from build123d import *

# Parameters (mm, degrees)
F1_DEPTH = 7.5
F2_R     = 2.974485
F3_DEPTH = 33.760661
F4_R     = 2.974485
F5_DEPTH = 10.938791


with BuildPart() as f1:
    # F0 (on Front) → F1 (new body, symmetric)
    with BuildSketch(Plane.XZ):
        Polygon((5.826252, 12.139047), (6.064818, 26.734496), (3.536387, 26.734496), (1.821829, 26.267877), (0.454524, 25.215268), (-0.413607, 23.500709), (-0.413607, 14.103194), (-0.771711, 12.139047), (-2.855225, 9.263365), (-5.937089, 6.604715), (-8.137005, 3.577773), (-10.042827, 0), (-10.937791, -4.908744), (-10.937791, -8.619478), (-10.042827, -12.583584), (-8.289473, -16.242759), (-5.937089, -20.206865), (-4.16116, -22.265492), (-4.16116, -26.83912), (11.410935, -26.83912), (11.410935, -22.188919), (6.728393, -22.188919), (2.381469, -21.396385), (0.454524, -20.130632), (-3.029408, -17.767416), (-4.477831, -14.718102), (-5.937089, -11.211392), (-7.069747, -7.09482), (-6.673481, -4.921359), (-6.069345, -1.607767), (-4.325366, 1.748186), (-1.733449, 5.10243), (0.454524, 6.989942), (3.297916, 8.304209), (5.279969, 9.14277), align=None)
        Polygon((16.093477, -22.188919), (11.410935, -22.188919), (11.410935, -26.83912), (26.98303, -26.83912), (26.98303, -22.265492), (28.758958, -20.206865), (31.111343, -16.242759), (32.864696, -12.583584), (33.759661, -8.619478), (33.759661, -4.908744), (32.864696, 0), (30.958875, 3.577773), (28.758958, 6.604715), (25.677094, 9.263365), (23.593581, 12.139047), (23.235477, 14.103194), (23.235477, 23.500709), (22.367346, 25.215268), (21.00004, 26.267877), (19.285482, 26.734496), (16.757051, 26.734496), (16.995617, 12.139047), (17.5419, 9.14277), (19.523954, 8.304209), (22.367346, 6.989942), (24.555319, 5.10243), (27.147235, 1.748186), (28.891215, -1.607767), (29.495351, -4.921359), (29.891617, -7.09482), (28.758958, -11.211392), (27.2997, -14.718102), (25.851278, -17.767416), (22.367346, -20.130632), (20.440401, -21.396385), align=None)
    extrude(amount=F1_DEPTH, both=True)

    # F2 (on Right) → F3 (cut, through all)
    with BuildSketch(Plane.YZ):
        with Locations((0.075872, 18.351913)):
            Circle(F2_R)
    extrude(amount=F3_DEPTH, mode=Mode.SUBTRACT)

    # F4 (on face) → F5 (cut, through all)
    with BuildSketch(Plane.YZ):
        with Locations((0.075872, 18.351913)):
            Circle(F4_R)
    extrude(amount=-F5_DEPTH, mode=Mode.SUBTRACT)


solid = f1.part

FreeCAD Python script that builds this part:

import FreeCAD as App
import Part
import Sketcher

doc = App.newDocument("Part")
params = doc.addObject("Spreadsheet::Sheet", "Params")
for row, (alias, value) in enumerate([
    ("pad1_length", "15 mm"),
], start=1):
    params.set(f"A{row}", alias)
    params.set(f"B{row}", "=" + value)
    params.setAlias(f"B{row}", alias)

body = doc.addObject("PartDesign::Body", "Body")

sketch1 = doc.addObject("Sketcher::SketchObject", "Sketch")
body.addObject(sketch1)
sketch1.AttachmentSupport = (doc.XZ_Plane, [""])
sketch1.MapMode = "FlatFace"
sketch1.addGeometry(Part.LineSegment(App.Vector(5.8, 12.1, 0), App.Vector(6.1, 26.7, 0)), False)
sketch1.addGeometry(Part.LineSegment(App.Vector(6.1, 26.7, 0), App.Vector(3.5, 26.7, 0)), False)
sketch1.addGeometry(Part.LineSegment(App.Vector(3.5, 26.7, 0), App.Vector(1.8, 26.3, 0)), False)
sketch1.addGeometry(Part.LineSegment(App.Vector(1.8, 26.3, 0), App.Vector(0.5, 25.2, 0)), False)
sketch1.addGeometry(Part.LineSegment(App.Vector(0.5, 25.2, 0), App.Vector(-0.4, 23.5, 0)), False)
sketch1.addGeometry(Part.LineSegment(App.Vector(-0.4, 23.5, 0), App.Vector(-0.4, 14.1, 0)), False)
sketch1.addGeometry(Part.LineSegment(App.Vector(-0.4, 14.1, 0), App.Vector(-0.8, 12.1, 0)), False)
sketch1.addGeometry(Part.LineSegment(App.Vector(-0.8, 12.1, 0), App.Vector(-2.9, 9.3, 0)), False)
sketch1.addGeometry(Part.LineSegment(App.Vector(-2.9, 9.3, 0), App.Vector(-5.9, 6.6, 0)), False)
sketch1.addGeometry(Part.LineSegment(App.Vector(-5.9, 6.6, 0), App.Vector(-8.1, 3.6, 0)), False)
sketch1.addGeometry(Part.LineSegment(App.Vector(-8.1, 3.6, 0), App.Vector(-10, 0, 0)), False)
sketch1.addGeometry(Part.LineSegment(App.Vector(-10, 0, 0), App.Vector(-10.9, -4.9, 0)), False)
sketch1.addGeometry(Part.LineSegment(App.Vector(-10.9, -4.9, 0), App.Vector(-10.9, -8.6, 0)), False)
sketch1.addGeometry(Part.LineSegment(App.Vector(-10.9, -8.6, 0), App.Vector(-10, -12.6, 0)), False)
sketch1.addGeometry(Part.LineSegment(App.Vector(-10, -12.6, 0), App.Vector(-8.3, -16.2, 0)), False)
sketch1.addGeometry(Part.LineSegment(App.Vector(-8.3, -16.2, 0), App.Vector(-5.9, -20.2, 0)), False)
sketch1.addGeometry(Part.LineSegment(App.Vector(-5.9, -20.2, 0), App.Vector(-4.2, -22.3, 0)), False)
sketch1.addGeometry(Part.LineSegment(App.Vector(-4.2, -22.3, 0), App.Vector(-4.2, -26.8, 0)), False)
sketch1.addGeometry(Part.LineSegment(App.Vector(-4.2, -26.8, 0), App.Vector(27, -26.8, 0)), False)
sketch1.addGeometry(Part.LineSegment(App.Vector(27, -26.8, 0), App.Vector(27, -22.3, 0)), False)
sketch1.addGeometry(Part.LineSegment(App.Vector(27, -22.3, 0), App.Vector(28.8, -20.2, 0)), False)
sketch1.addGeometry(Part.LineSegment(App.Vector(28.8, -20.2, 0), App.Vector(31.1, -16.2, 0)), False)
sketch1.addGeometry(Part.LineSegment(App.Vector(31.1, -16.2, 0), App.Vector(32.9, -12.6, 0)), False)
sketch1.addGeometry(Part.LineSegment(App.Vector(32.9, -12.6, 0), App.Vector(33.8, -8.6, 0)), False)
sketch1.addGeometry(Part.LineSegment(App.Vector(33.8, -8.6, 0), App.Vector(33.8, -4.9, 0)), False)
sketch1.addGeometry(Part.LineSegment(App.Vector(33.8, -4.9, 0), App.Vector(32.9, 0, 0)), False)
sketch1.addGeometry(Part.LineSegment(App.Vector(32.9, 0, 0), App.Vector(31, 3.6, 0)), False)
sketch1.addGeometry(Part.LineSegment(App.Vector(31, 3.6, 0), App.Vector(28.8, 6.6, 0)), False)
sketch1.addGeometry(Part.LineSegment(App.Vector(28.8, 6.6, 0), App.Vector(25.7, 9.3, 0)), False)
sketch1.addGeometry(Part.LineSegment(App.Vector(25.7, 9.3, 0), App.Vector(23.6, 12.1, 0)), False)
sketch1.addGeometry(Part.LineSegment(App.Vector(23.6, 12.1, 0), App.Vector(23.2, 14.1, 0)), False)
sketch1.addGeometry(Part.LineSegment(App.Vector(23.2, 14.1, 0), App.Vector(23.2, 23.5, 0)), False)
sketch1.addGeometry(Part.LineSegment(App.Vector(23.2, 23.5, 0), App.Vector(22.4, 25.2, 0)), False)
sketch1.addGeometry(Part.LineSegment(App.Vector(22.4, 25.2, 0), App.Vector(21, 26.3, 0)), False)
sketch1.addGeometry(Part.LineSegment(App.Vector(21, 26.3, 0), App.Vector(19.3, 26.7, 0)), False)
sketch1.addGeometry(Part.LineSegment(App.Vector(19.3, 26.7, 0), App.Vector(16.8, 26.7, 0)), False)
sketch1.addGeometry(Part.LineSegment(App.Vector(16.8, 26.7, 0), App.Vector(17, 12.1, 0)), False)
sketch1.addGeometry(Part.LineSegment(App.Vector(17, 12.1, 0), App.Vector(17.5, 9.1, 0)), False)
sketch1.addGeometry(Part.LineSegment(App.Vector(17.5, 9.1, 0), App.Vector(19.5, 8.3, 0)), False)
sketch1.addGeometry(Part.LineSegment(App.Vector(19.5, 8.3, 0), App.Vector(22.4, 7, 0)), False)
sketch1.addGeometry(Part.LineSegment(App.Vector(22.4, 7, 0), App.Vector(24.6, 5.1, 0)), False)
sketch1.addGeometry(Part.LineSegment(App.Vector(24.6, 5.1, 0), App.Vector(27.1, 1.7, 0)), False)
sketch1.addGeometry(Part.LineSegment(App.Vector(27.1, 1.7, 0), App.Vector(28.9, -1.6, 0)), False)
sketch1.addGeometry(Part.LineSegment(App.Vector(28.9, -1.6, 0), App.Vector(29.5, -4.9, 0)), False)
sketch1.addGeometry(Part.LineSegment(App.Vector(29.5, -4.9, 0), App.Vector(29.9, -7.1, 0)), False)
sketch1.addGeometry(Part.LineSegment(App.Vector(29.9, -7.1, 0), App.Vector(28.8, -11.2, 0)), False)
sketch1.addGeometry(Part.LineSegment(App.Vector(28.8, -11.2, 0), App.Vector(27.3, -14.7, 0)), False)
sketch1.addGeometry(Part.LineSegment(App.Vector(27.3, -14.7, 0), App.Vector(25.9, -17.8, 0)), False)
sketch1.addGeometry(Part.LineSegment(App.Vector(25.9, -17.8, 0), App.Vector(22.4, -20.1, 0)), False)
sketch1.addGeometry(Part.LineSegment(App.Vector(22.4, -20.1, 0), App.Vector(20.4, -21.4, 0)), False)
sketch1.addGeometry(Part.LineSegment(App.Vector(20.4, -21.4, 0), App.Vector(16.1, -22.2, 0)), False)
sketch1.addGeometry(Part.LineSegment(App.Vector(16.1, -22.2, 0), App.Vector(6.7, -22.2, 0)), False)
sketch1.addGeometry(Part.LineSegment(App.Vector(6.7, -22.2, 0), App.Vector(2.4, -21.4, 0)), False)
sketch1.addGeometry(Part.LineSegment(App.Vector(2.4, -21.4, 0), App.Vector(0.5, -20.1, 0)), False)
sketch1.addGeometry(Part.LineSegment(App.Vector(0.5, -20.1, 0), App.Vector(-3, -17.8, 0)), False)
sketch1.addGeometry(Part.LineSegment(App.Vector(-3, -17.8, 0), App.Vector(-4.5, -14.7, 0)), False)
sketch1.addGeometry(Part.LineSegment(App.Vector(-4.5, -14.7, 0), App.Vector(-5.9, -11.2, 0)), False)
sketch1.addGeometry(Part.LineSegment(App.Vector(-5.9, -11.2, 0), App.Vector(-7.1, -7.1, 0)), False)
sketch1.addGeometry(Part.LineSegment(App.Vector(-7.1, -7.1, 0), App.Vector(-6.7, -4.9, 0)), False)
sketch1.addGeometry(Part.LineSegment(App.Vector(-6.7, -4.9, 0), App.Vector(-6.1, -1.6, 0)), False)
sketch1.addGeometry(Part.LineSegment(App.Vector(-6.1, -1.6, 0), App.Vector(-4.3, 1.7, 0)), False)
sketch1.addGeometry(Part.LineSegment(App.Vector(-4.3, 1.7, 0), App.Vector(-1.7, 5.1, 0)), False)
sketch1.addGeometry(Part.LineSegment(App.Vector(-1.7, 5.1, 0), App.Vector(0.5, 7, 0)), False)
sketch1.addGeometry(Part.LineSegment(App.Vector(0.5, 7, 0), App.Vector(3.3, 8.3, 0)), False)
sketch1.addGeometry(Part.LineSegment(App.Vector(3.3, 8.3, 0), App.Vector(5.3, 9.1, 0)), False)
sketch1.addGeometry(Part.LineSegment(App.Vector(5.3, 9.1, 0), App.Vector(5.8, 12.1, 0)), False)
sketch1.addConstraint(Sketcher.Constraint("Coincident", 0, 2, 1, 1))
sketch1.addConstraint(Sketcher.Constraint("Coincident", 1, 2, 2, 1))
sketch1.addConstraint(Sketcher.Constraint("Coincident", 2, 2, 3, 1))
sketch1.addConstraint(Sketcher.Constraint("Coincident", 3, 2, 4, 1))
sketch1.addConstraint(Sketcher.Constraint("Coincident", 4, 2, 5, 1))
sketch1.addConstraint(Sketcher.Constraint("Coincident", 5, 2, 6, 1))
sketch1.addConstraint(Sketcher.Constraint("Coincident", 6, 2, 7, 1))
sketch1.addConstraint(Sketcher.Constraint("Coincident", 7, 2, 8, 1))
sketch1.addConstraint(Sketcher.Constraint("Coincident", 8, 2, 9, 1))
sketch1.addConstraint(Sketcher.Constraint("Coincident", 9, 2, 10, 1))
sketch1.addConstraint(Sketcher.Constraint("Coincident", 10, 2, 11, 1))
sketch1.addConstraint(Sketcher.Constraint("Coincident", 11, 2, 12, 1))
sketch1.addConstraint(Sketcher.Constraint("Coincident", 12, 2, 13, 1))
sketch1.addConstraint(Sketcher.Constraint("Coincident", 13, 2, 14, 1))
sketch1.addConstraint(Sketcher.Constraint("Coincident", 14, 2, 15, 1))
sketch1.addConstraint(Sketcher.Constraint("Coincident", 15, 2, 16, 1))
sketch1.addConstraint(Sketcher.Constraint("Coincident", 16, 2, 17, 1))
sketch1.addConstraint(Sketcher.Constraint("Coincident", 17, 2, 18, 1))
sketch1.addConstraint(Sketcher.Constraint("Coincident", 18, 2, 19, 1))
sketch1.addConstraint(Sketcher.Constraint("Coincident", 19, 2, 20, 1))
sketch1.addConstraint(Sketcher.Constraint("Coincident", 20, 2, 21, 1))
sketch1.addConstraint(Sketcher.Constraint("Coincident", 21, 2, 22, 1))
sketch1.addConstraint(Sketcher.Constraint("Coincident", 22, 2, 23, 1))
sketch1.addConstraint(Sketcher.Constraint("Coincident", 23, 2, 24, 1))
sketch1.addConstraint(Sketcher.Constraint("Coincident", 24, 2, 25, 1))
sketch1.addConstraint(Sketcher.Constraint("Coincident", 25, 2, 26, 1))
sketch1.addConstraint(Sketcher.Constraint("Coincident", 26, 2, 27, 1))
sketch1.addConstraint(Sketcher.Constraint("Coincident", 27, 2, 28, 1))
sketch1.addConstraint(Sketcher.Constraint("Coincident", 28, 2, 29, 1))
sketch1.addConstraint(Sketcher.Constraint("Coincident", 29, 2, 30, 1))
sketch1.addConstraint(Sketcher.Constraint("Coincident", 30, 2, 31, 1))
sketch1.addConstraint(Sketcher.Constraint("Coincident", 31, 2, 32, 1))
sketch1.addConstraint(Sketcher.Constraint("Coincident", 32, 2, 33, 1))
sketch1.addConstraint(Sketcher.Constraint("Coincident", 33, 2, 34, 1))
sketch1.addConstraint(Sketcher.Constraint("Coincident", 34, 2, 35, 1))
sketch1.addConstraint(Sketcher.Constraint("Coincident", 35, 2, 36, 1))
sketch1.addConstraint(Sketcher.Constraint("Coincident", 36, 2, 37, 1))
sketch1.addConstraint(Sketcher.Constraint("Coincident", 37, 2, 38, 1))
sketch1.addConstraint(Sketcher.Constraint("Coincident", 38, 2, 39, 1))
sketch1.addConstraint(Sketcher.Constraint("Coincident", 39, 2, 40, 1))
sketch1.addConstraint(Sketcher.Constraint("Coincident", 40, 2, 41, 1))
sketch1.addConstraint(Sketcher.Constraint("Coincident", 41, 2, 42, 1))
sketch1.addConstraint(Sketcher.Constraint("Coincident", 42, 2, 43, 1))
sketch1.addConstraint(Sketcher.Constraint("Coincident", 43, 2, 44, 1))
sketch1.addConstraint(Sketcher.Constraint("Coincident", 44, 2, 45, 1))
sketch1.addConstraint(Sketcher.Constraint("Coincident", 45, 2, 46, 1))
sketch1.addConstraint(Sketcher.Constraint("Coincident", 46, 2, 47, 1))
sketch1.addConstraint(Sketcher.Constraint("Coincident", 47, 2, 48, 1))
sketch1.addConstraint(Sketcher.Constraint("Coincident", 48, 2, 49, 1))
sketch1.addConstraint(Sketcher.Constraint("Coincident", 49, 2, 50, 1))
sketch1.addConstraint(Sketcher.Constraint("Coincident", 50, 2, 51, 1))
sketch1.addConstraint(Sketcher.Constraint("Coincident", 51, 2, 52, 1))
sketch1.addConstraint(Sketcher.Constraint("Coincident", 52, 2, 53, 1))
sketch1.addConstraint(Sketcher.Constraint("Coincident", 53, 2, 54, 1))
sketch1.addConstraint(Sketcher.Constraint("Coincident", 54, 2, 55, 1))
sketch1.addConstraint(Sketcher.Constraint("Coincident", 55, 2, 56, 1))
sketch1.addConstraint(Sketcher.Constraint("Coincident", 56, 2, 57, 1))
sketch1.addConstraint(Sketcher.Constraint("Coincident", 57, 2, 58, 1))
sketch1.addConstraint(Sketcher.Constraint("Coincident", 58, 2, 59, 1))
sketch1.addConstraint(Sketcher.Constraint("Coincident", 59, 2, 60, 1))
sketch1.addConstraint(Sketcher.Constraint("Coincident", 60, 2, 61, 1))
sketch1.addConstraint(Sketcher.Constraint("Coincident", 61, 2, 62, 1))
sketch1.addConstraint(Sketcher.Constraint("Coincident", 62, 2, 63, 1))
sketch1.addConstraint(Sketcher.Constraint("Coincident", 63, 2, 64, 1))
sketch1.addConstraint(Sketcher.Constraint("Coincident", 64, 2, 65, 1))
sketch1.addConstraint(Sketcher.Constraint("Coincident", 65, 2, 0, 1))
sketch1.addConstraint(Sketcher.Constraint("Horizontal", 1))
sketch1.addConstraint(Sketcher.Constraint("Vertical", 5))
sketch1.addConstraint(Sketcher.Constraint("Vertical", 12))
sketch1.addConstraint(Sketcher.Constraint("Vertical", 17))
sketch1.addConstraint(Sketcher.Constraint("Horizontal", 18))
sketch1.addConstraint(Sketcher.Constraint("Vertical", 19))
sketch1.addConstraint(Sketcher.Constraint("Vertical", 24))
sketch1.addConstraint(Sketcher.Constraint("Vertical", 31))
sketch1.addConstraint(Sketcher.Constraint("Horizontal", 35))
sketch1.addConstraint(Sketcher.Constraint("Horizontal", 51))
sketch1.addConstraint(Sketcher.Constraint("PointOnObject", 10, 2, -1))
sketch1.addConstraint(Sketcher.Constraint("PointOnObject", 25, 2, -1))
sketch1.addConstraint(Sketcher.Constraint("Parallel", 6, 11))
sketch1.addConstraint(Sketcher.Constraint("Perpendicular", 8, 16))
sketch1.addConstraint(Sketcher.Constraint("Perpendicular", 20, 28))
sketch1.addConstraint(Sketcher.Constraint("Parallel", 25, 30))
sketch1.addConstraint(Sketcher.Constraint("Parallel", 30, 37))
sketch1.addConstraint(Sketcher.Constraint("Parallel", 28, 40))
sketch1.addConstraint(Sketcher.Constraint("Parallel", 37, 43))
sketch1.addConstraint(Sketcher.Constraint("Parallel", 43, 44))
sketch1.addConstraint(Sketcher.Constraint("Perpendicular", 44, 50))
sketch1.addConstraint(Sketcher.Constraint("Perpendicular", 11, 52))
sketch1.addConstraint(Sketcher.Constraint("Perpendicular", 52, 58))
sketch1.addConstraint(Sketcher.Constraint("Parallel", 58, 59))
sketch1.addConstraint(Sketcher.Constraint("Perpendicular", 16, 62))
sketch1.addConstraint(Sketcher.Constraint("Parallel", 59, 65))
sketch1.addConstraint(Sketcher.Constraint("Horizontal", 16, 2, 19, 2))
sketch1.addConstraint(Sketcher.Constraint("Horizontal", 15, 2, 20, 2))
sketch1.addConstraint(Sketcher.Constraint("Horizontal", 14, 2, 21, 2))
sketch1.addConstraint(Sketcher.Constraint("Horizontal", 13, 2, 22, 2))
sketch1.addConstraint(Sketcher.Constraint("Horizontal", 12, 2, 23, 2))
sketch1.addConstraint(Sketcher.Constraint("Horizontal", 11, 2, 24, 2))
sketch1.addConstraint(Sketcher.Constraint("Horizontal", 9, 2, 26, 2))
sketch1.addConstraint(Sketcher.Constraint("Horizontal", 8, 2, 27, 2))
sketch1.addConstraint(Sketcher.Constraint("Horizontal", 7, 2, 28, 2))
sketch1.addConstraint(Sketcher.Constraint("Horizontal", 6, 2, 29, 2))
sketch1.addConstraint(Sketcher.Constraint("Horizontal", 5, 2, 30, 2))
sketch1.addConstraint(Sketcher.Constraint("Horizontal", 4, 2, 31, 2))
sketch1.addConstraint(Sketcher.Constraint("Horizontal", 3, 2, 32, 2))
sketch1.addConstraint(Sketcher.Constraint("Horizontal", 2, 2, 33, 2))
sketch1.addConstraint(Sketcher.Constraint("Horizontal", 1, 2, 34, 2))
sketch1.addConstraint(Sketcher.Constraint("Horizontal", 29, 2, 36, 2))
sketch1.addConstraint(Sketcher.Constraint("Horizontal", 49, 2, 52, 2))
sketch1.addConstraint(Sketcher.Constraint("Horizontal", 48, 2, 53, 2))
sketch1.addConstraint(Sketcher.Constraint("Horizontal", 47, 2, 54, 2))
sketch1.addConstraint(Sketcher.Constraint("Horizontal", 46, 2, 55, 2))
sketch1.addConstraint(Sketcher.Constraint("Horizontal", 45, 2, 56, 2))
sketch1.addConstraint(Sketcher.Constraint("Horizontal", 44, 2, 57, 2))
sketch1.addConstraint(Sketcher.Constraint("Horizontal", 43, 2, 58, 2))
sketch1.addConstraint(Sketcher.Constraint("Horizontal", 42, 2, 59, 2))
sketch1.addConstraint(Sketcher.Constraint("Horizontal", 41, 2, 60, 2))
sketch1.addConstraint(Sketcher.Constraint("Horizontal", 40, 2, 61, 2))
sketch1.addConstraint(Sketcher.Constraint("Horizontal", 39, 2, 62, 2))
sketch1.addConstraint(Sketcher.Constraint("Horizontal", 38, 2, 63, 2))
sketch1.addConstraint(Sketcher.Constraint("Horizontal", 37, 2, 64, 2))
sketch1.addConstraint(Sketcher.Constraint("Horizontal", 36, 2, 65, 2))
sketch1.addConstraint(Sketcher.Constraint("Vertical", 10, 2, 13, 2))
sketch1.addConstraint(Sketcher.Constraint("Vertical", 8, 2, 15, 2))
sketch1.addConstraint(Sketcher.Constraint("Vertical", 22, 2, 25, 2))
sketch1.addConstraint(Sketcher.Constraint("Vertical", 20, 2, 27, 2))
sketch1.addConstraint(Sketcher.Constraint("Vertical", 32, 2, 39, 2))
sketch1.addConstraint(Sketcher.Constraint("Vertical", 27, 2, 45, 2))
sketch1.addConstraint(Sketcher.Constraint("Vertical", 39, 2, 48, 2))
sketch1.addConstraint(Sketcher.Constraint("Vertical", 3, 2, 53, 2))
sketch1.addConstraint(Sketcher.Constraint("Vertical", 15, 2, 56, 2))
sketch1.addConstraint(Sketcher.Constraint("Vertical", 53, 2, 62, 2))
sketch1.addConstraint(Sketcher.Constraint("Equal", 1, 35))
sketch1.addConstraint(Sketcher.Constraint("Equal", 16, 20))
sketch1.addConstraint(Sketcher.Constraint("Equal", 15, 21))
sketch1.addConstraint(Sketcher.Constraint("Equal", 14, 22))
sketch1.addConstraint(Sketcher.Constraint("Equal", 13, 23))
sketch1.addConstraint(Sketcher.Constraint("Equal", 10, 26))
sketch1.addConstraint(Sketcher.Constraint("Equal", 7, 29))
sketch1.addConstraint(Sketcher.Constraint("Equal", 4, 32))
sketch1.addConstraint(Sketcher.Constraint("Equal", 3, 33))
sketch1.addConstraint(Sketcher.Constraint("Equal", 2, 34))
sketch1.addConstraint(Sketcher.Constraint("Equal", 0, 36))
sketch1.addConstraint(Sketcher.Constraint("Equal", 49, 53))
sketch1.addConstraint(Sketcher.Constraint("Equal", 48, 54))
sketch1.addConstraint(Sketcher.Constraint("Equal", 47, 55))
sketch1.addConstraint(Sketcher.Constraint("Equal", 45, 57))
sketch1.addConstraint(Sketcher.Constraint("Equal", 42, 60))
sketch1.addConstraint(Sketcher.Constraint("Equal", 39, 63))
sketch1.addConstraint(Sketcher.Constraint("Distance", 0, 14.597399))
sketch1.addConstraint(Sketcher.Constraint("Distance", 16, 2.718799))
sketch1.addConstraint(Sketcher.Constraint("DistanceX", 1, 2, 1, 1, 2.528431))
sketch1.addConstraint(Sketcher.Constraint("DistanceX", 18, 1, 18, 2, 31.14419))
sketch1.addConstraint(Sketcher.Constraint("DistanceY", 17, 2, 17, 1, 4.573628))
sketch1.addConstraint(Sketcher.Constraint("DistanceX", -1, 1, 37, 2, 17.5419))
sketch1.addConstraint(Sketcher.Constraint("DistanceX", -1, 1, 46, 2, 27.2997))
sketch1.addConstraint(Sketcher.Constraint("DistanceX", -1, 1, 49, 2, 20.440401))
sketch1.addConstraint(Sketcher.Constraint("Distance", 2, 1.776919))
sketch1.addConstraint(Sketcher.Constraint("Distance", 15, 4.609539))
sketch1.addConstraint(Sketcher.Constraint("Distance", 22, 4.057562))
sketch1.addConstraint(Sketcher.Constraint("Distance", 37, 3.045669))
sketch1.addConstraint(Sketcher.Constraint("Distance", 39, 3.132439))
sketch1.addConstraint(Sketcher.Constraint("Distance", 44, 2.209289))
sketch1.addConstraint(Sketcher.Constraint("Distance", 48, 4.209819))
sketch1.addConstraint(Sketcher.Constraint("Distance", 50, 4.418581))
sketch1.addConstraint(Sketcher.Constraint("DistanceX", 51, 2, 51, 1, 9.365084))
sketch1.addConstraint(Sketcher.Constraint("DistanceY", 5, 2, 5, 1, 9.397515))
sketch1.addConstraint(Sketcher.Constraint("DistanceY", 12, 2, 12, 1, 3.710734))
sketch1.addConstraint(Sketcher.Constraint("DistanceX", -1, 1, 2, 2, 1.821829))
sketch1.addConstraint(Sketcher.Constraint("DistanceY", -1, 1, 4, 2, 23.500709))
sketch1.addConstraint(Sketcher.Constraint("DistanceX", 6, 2, -1, 1, 0.771711))
sketch1.addConstraint(Sketcher.Constraint("DistanceX", 8, 2, -1, 1, 5.937089))
sketch1.addConstraint(Sketcher.Constraint("DistanceX", 11, 2, -1, 1, 10.937791))
sketch1.addConstraint(Sketcher.Constraint("DistanceY", 12, 2, -1, 1, 8.619478))
sketch1.addConstraint(Sketcher.Constraint("DistanceY", 14, 2, -1, 1, 16.242759))
sketch1.addConstraint(Sketcher.Constraint("DistanceX", 16, 2, -1, 1, 4.16116))
sketch1.addConstraint(Sketcher.Constraint("DistanceY", 16, 2, -1, 1, 22.265492))
sketch1.addConstraint(Sketcher.Constraint("DistanceX", -1, 1, 34, 2, 19.285482))
sketch1.addConstraint(Sketcher.Constraint("DistanceY", -1, 1, 37, 2, 9.14277))
sketch1.addConstraint(Sketcher.Constraint("DistanceY", -1, 1, 38, 2, 8.304209))
sketch1.addConstraint(Sketcher.Constraint("DistanceX", -1, 1, 40, 2, 24.555319))
sketch1.addConstraint(Sketcher.Constraint("DistanceY", -1, 1, 40, 2, 5.10243))
sketch1.addConstraint(Sketcher.Constraint("DistanceX", -1, 1, 43, 2, 29.495351))
sketch1.addConstraint(Sketcher.Constraint("DistanceY", 43, 2, -1, 1, 4.921359))
sketch1.addConstraint(Sketcher.Constraint("DistanceX", -1, 1, 47, 2, 25.851278))
sketch1.addConstraint(Sketcher.Constraint("DistanceY", 48, 2, -1, 1, 20.130632))
sketch1.addConstraint(Sketcher.Constraint("DistanceY", 50, 2, -1, 1, 22.188919))
sketch1.addConstraint(Sketcher.Constraint("Distance", 3, 1.725546))
sketch1.addConstraint(Sketcher.Constraint("Distance", 4, 1.921813))
sketch1.addConstraint(Sketcher.Constraint("Distance", 7, 3.551138))
sketch1.addConstraint(Sketcher.Constraint("Distance", 8, 4.070173))
sketch1.addConstraint(Sketcher.Constraint("Distance", 9, 3.741926))
sketch1.addConstraint(Sketcher.Constraint("Distance", 10, 4.053716))
sketch1.addConstraint(Sketcher.Constraint("Distance", 41, 4.238984))
sketch1.addConstraint(Sketcher.Constraint("Distance", 42, 3.782048))
sketch1.addConstraint(Sketcher.Constraint("Distance", 43, 3.368215))
sketch1.addConstraint(Sketcher.Constraint("Distance", 45, 4.269553))
sketch1.addConstraint(Sketcher.Constraint("Distance", 46, 3.798217))
pad1 = doc.addObject("PartDesign::Pad", "Pad")
body.addObject(pad1)
pad1.Profile = sketch1
pad1.setExpression("Length", "Params.pad1_length")
pad1.Midplane = True

sketch2 = doc.addObject("Sketcher::SketchObject", "Sketch001")
body.addObject(sketch2)
sketch2.AttachmentSupport = (doc.YZ_Plane, [""])
sketch2.MapMode = "FlatFace"
sketch2.addGeometry(Part.Circle(App.Vector(0.1, 18.4, 0), App.Vector(0, 0, 1), 3), False)
sketch2.addConstraint(Sketcher.Constraint("Diameter", 0, 5.94897))
sketch2.addConstraint(Sketcher.Constraint("DistanceX", -1, 1, 0, 3, 0.075872))
sketch2.addConstraint(Sketcher.Constraint("DistanceY", -1, 1, 0, 3, 18.351913))
pocket1 = doc.addObject("PartDesign::Pocket", "Pocket")
body.addObject(pocket1)
pocket1.Profile = sketch2
pocket1.Type = "ThroughAll"
pocket1.Reversed = True

sketch3 = doc.addObject("Sketcher::SketchObject", "Sketch002")
body.addObject(sketch3)
sketch3.AttachmentSupport = (doc.YZ_Plane, [""])
sketch3.MapMode = "FlatFace"
sketch3.addGeometry(Part.Circle(App.Vector(0.1, 18.4, 0), App.Vector(0, 0, 1), 3), False)
sketch3.addConstraint(Sketcher.Constraint("Diameter", 0, 5.94897))
sketch3.addConstraint(Sketcher.Constraint("DistanceX", -1, 1, 0, 3, 0.075872))
sketch3.addConstraint(Sketcher.Constraint("DistanceY", -1, 1, 0, 3, 18.351913))
pocket2 = doc.addObject("PartDesign::Pocket", "Pocket001")
body.addObject(pocket2)
pocket2.Profile = sketch3
pocket2.Type = "ThroughAll"

doc.recompute()
